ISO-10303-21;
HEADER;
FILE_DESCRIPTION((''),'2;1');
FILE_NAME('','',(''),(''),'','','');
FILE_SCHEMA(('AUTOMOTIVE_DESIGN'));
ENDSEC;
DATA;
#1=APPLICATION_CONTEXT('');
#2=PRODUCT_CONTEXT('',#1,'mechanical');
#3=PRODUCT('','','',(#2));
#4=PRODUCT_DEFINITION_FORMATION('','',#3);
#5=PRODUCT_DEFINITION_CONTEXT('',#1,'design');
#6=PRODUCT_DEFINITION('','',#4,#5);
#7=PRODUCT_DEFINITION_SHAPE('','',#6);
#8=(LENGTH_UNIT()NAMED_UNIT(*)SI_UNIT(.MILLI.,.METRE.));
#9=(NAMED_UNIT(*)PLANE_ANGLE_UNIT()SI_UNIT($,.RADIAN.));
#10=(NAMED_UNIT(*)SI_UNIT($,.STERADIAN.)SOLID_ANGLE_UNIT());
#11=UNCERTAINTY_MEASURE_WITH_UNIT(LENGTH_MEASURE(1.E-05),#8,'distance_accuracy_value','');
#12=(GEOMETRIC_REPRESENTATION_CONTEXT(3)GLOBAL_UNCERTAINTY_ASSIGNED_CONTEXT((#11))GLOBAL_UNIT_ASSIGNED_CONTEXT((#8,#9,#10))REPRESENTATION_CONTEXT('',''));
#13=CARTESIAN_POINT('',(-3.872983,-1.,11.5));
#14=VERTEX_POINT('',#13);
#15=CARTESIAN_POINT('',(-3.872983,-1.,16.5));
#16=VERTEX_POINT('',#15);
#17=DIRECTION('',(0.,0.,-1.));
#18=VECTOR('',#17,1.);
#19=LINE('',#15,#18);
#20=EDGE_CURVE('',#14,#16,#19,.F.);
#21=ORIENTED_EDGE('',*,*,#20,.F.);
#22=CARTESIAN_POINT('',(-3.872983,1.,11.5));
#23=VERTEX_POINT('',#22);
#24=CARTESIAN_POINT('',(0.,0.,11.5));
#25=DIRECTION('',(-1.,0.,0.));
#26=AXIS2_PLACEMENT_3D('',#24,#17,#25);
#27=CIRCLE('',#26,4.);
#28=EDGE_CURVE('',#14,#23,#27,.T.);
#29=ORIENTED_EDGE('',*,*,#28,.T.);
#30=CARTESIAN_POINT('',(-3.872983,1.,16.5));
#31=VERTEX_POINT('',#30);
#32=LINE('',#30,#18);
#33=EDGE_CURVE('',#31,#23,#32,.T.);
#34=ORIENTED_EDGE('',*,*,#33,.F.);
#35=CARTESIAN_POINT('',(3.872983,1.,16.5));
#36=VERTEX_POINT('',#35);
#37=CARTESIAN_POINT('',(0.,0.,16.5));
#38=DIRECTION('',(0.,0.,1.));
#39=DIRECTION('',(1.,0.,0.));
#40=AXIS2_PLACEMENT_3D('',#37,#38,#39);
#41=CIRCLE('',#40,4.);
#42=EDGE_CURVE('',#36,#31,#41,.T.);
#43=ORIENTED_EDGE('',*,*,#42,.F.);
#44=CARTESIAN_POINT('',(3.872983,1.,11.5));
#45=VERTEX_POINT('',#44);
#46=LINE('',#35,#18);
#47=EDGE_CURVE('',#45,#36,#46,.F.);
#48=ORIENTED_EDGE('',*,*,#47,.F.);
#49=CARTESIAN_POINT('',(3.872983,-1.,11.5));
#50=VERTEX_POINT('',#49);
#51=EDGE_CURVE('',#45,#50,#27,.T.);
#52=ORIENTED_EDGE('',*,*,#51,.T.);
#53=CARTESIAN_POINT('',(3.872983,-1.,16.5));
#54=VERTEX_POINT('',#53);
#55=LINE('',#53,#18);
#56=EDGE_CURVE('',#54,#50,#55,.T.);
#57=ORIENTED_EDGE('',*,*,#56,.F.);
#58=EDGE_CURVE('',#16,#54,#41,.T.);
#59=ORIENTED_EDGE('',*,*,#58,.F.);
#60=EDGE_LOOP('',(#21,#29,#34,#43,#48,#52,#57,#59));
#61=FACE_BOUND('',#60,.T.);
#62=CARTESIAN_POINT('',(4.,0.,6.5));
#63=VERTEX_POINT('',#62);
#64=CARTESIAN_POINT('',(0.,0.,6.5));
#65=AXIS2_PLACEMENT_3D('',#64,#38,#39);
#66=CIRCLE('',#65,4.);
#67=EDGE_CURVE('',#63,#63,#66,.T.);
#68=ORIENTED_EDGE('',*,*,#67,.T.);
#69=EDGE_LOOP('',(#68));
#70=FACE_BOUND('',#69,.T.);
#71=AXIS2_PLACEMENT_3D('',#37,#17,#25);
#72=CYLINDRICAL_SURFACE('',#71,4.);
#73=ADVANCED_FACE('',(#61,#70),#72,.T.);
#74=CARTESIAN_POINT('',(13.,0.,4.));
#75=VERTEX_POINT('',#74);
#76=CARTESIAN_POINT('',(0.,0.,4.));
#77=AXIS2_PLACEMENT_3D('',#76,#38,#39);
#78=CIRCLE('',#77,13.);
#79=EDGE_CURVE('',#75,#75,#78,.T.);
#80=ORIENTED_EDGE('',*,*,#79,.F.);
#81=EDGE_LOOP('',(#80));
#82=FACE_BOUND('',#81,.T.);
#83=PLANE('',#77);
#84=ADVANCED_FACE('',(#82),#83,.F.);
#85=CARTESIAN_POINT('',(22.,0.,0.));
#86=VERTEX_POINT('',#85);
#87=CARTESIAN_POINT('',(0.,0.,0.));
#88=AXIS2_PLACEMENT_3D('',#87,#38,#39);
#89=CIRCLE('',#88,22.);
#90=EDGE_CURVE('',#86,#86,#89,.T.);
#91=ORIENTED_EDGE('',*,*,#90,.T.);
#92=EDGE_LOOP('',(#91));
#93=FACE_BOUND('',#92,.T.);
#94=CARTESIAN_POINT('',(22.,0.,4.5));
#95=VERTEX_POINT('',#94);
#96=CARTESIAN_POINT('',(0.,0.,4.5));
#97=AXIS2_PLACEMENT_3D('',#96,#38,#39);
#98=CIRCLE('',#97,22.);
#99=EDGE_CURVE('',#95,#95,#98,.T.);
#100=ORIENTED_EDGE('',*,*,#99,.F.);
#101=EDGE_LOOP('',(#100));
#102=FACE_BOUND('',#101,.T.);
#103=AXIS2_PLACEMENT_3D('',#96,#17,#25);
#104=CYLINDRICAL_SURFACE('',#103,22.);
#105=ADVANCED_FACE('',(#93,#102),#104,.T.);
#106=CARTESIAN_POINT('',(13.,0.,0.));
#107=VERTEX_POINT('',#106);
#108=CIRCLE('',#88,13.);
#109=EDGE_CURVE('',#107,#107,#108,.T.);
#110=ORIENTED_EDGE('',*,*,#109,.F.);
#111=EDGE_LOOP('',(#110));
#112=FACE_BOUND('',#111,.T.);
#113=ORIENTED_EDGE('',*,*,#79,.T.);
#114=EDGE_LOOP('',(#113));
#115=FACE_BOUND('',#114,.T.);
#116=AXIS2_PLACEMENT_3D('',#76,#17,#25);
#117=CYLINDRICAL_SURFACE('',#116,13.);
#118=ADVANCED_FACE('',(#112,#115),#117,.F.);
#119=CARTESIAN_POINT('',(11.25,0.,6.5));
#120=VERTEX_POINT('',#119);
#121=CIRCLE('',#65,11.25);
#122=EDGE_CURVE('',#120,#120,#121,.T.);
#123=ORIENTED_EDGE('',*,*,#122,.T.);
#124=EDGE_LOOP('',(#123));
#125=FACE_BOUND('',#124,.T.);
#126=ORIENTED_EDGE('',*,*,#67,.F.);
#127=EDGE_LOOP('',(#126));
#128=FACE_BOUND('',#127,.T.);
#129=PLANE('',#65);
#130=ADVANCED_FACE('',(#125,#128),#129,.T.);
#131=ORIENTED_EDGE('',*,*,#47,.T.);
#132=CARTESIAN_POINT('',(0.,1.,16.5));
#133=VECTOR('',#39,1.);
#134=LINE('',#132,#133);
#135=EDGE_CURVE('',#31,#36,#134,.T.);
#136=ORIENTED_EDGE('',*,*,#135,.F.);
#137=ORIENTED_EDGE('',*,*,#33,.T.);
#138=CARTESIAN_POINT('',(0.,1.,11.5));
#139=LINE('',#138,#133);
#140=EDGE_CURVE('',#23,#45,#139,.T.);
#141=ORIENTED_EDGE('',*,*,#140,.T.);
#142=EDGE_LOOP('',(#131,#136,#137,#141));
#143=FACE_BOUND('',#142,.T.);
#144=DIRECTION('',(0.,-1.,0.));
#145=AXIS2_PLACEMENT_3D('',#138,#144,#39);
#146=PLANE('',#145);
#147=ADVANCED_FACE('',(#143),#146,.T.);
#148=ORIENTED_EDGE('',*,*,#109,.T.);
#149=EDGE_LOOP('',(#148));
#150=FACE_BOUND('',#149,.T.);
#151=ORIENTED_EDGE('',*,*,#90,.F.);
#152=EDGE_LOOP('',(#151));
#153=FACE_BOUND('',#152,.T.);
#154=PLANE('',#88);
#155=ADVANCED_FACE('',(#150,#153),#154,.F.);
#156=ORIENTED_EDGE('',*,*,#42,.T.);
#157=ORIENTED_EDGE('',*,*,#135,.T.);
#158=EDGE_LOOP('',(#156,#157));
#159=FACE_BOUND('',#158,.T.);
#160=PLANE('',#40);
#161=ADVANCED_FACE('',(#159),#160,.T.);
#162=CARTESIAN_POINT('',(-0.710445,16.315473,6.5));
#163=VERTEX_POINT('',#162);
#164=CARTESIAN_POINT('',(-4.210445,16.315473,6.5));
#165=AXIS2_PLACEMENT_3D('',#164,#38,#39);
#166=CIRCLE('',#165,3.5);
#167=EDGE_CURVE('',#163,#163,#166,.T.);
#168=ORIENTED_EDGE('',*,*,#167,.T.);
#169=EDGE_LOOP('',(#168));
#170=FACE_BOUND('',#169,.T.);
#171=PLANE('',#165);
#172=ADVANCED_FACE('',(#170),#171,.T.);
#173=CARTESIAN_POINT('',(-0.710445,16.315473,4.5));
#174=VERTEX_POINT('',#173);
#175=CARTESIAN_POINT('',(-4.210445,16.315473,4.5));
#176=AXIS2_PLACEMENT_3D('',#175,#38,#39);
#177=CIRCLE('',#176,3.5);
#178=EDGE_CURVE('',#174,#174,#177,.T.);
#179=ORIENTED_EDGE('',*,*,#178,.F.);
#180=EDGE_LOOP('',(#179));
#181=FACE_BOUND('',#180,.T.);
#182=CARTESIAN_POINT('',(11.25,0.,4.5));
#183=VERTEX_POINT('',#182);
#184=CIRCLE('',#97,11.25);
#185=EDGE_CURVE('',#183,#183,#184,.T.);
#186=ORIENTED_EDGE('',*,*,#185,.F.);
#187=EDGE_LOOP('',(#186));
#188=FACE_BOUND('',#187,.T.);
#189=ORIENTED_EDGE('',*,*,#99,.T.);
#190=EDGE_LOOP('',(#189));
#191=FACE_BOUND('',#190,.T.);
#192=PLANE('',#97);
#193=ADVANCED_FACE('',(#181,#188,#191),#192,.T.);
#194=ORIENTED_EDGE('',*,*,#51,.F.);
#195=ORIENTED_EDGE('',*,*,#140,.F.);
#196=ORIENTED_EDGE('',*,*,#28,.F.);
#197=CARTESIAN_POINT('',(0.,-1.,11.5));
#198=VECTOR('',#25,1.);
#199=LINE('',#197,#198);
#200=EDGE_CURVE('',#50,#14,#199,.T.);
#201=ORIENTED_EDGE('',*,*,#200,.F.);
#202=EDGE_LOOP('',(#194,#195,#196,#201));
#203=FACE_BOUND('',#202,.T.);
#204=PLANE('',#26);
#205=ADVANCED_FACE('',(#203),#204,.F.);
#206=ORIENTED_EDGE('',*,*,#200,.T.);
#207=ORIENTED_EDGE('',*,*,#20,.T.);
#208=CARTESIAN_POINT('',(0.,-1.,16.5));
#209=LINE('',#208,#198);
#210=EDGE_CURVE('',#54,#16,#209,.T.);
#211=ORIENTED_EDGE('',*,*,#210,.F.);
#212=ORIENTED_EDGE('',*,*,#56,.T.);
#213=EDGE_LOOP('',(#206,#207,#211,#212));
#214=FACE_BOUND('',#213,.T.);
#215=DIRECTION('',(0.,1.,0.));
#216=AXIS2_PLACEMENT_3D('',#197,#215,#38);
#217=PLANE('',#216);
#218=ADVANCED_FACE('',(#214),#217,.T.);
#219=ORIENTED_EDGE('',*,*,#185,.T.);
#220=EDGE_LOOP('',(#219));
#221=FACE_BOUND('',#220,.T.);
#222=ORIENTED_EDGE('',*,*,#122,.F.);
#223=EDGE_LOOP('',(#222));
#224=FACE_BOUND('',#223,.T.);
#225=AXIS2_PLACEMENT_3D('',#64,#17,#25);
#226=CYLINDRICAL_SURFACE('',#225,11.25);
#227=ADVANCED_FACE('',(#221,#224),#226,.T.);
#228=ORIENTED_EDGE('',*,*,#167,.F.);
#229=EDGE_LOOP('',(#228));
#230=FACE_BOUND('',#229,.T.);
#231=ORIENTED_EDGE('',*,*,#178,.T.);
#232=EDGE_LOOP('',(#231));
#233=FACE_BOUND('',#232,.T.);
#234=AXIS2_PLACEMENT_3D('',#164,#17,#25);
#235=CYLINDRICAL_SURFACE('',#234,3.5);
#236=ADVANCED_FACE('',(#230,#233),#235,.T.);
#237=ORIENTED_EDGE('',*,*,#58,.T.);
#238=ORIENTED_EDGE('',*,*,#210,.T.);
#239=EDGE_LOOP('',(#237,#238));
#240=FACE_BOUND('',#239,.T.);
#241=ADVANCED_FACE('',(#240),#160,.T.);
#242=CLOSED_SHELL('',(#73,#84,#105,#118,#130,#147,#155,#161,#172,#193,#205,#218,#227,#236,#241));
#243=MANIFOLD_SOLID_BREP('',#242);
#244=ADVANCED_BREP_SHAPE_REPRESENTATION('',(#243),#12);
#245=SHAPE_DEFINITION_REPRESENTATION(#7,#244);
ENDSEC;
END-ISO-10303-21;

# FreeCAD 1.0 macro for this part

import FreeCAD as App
import Part
import Sketcher
from FreeCAD import Vector
Q = App.Units.Quantity

doc = App.newDocument("Part")
body = doc.addObject("PartDesign::Body", "Body")

# Sketch on XY plane
sketch1 = body.newObject("Sketcher::SketchObject", "Sketch")
sketch1.AttachmentSupport = (doc.getObject("XY_Plane"), [""])
sketch1.MapMode = "FlatFace"
sketch1.addGeometry(Part.Circle(Vector(0, 0, 0), Vector(0, 0, 1), 22), False)
sketch1.addConstraint([
    Sketcher.Constraint("Coincident", 0, 3, -1, 1),
    Sketcher.Constraint("Diameter", 0, Q("44 mm")),
])
pad1 = body.newObject("PartDesign::Pad", "Pad")
pad1.Profile = sketch1
pad1.Length = 4.5

# Sketch on XY plane
sketch2 = body.newObject("Sketcher::SketchObject", "Sketch001")
sketch2.AttachmentSupport = (doc.getObject("XY_Plane"), [""])
sketch2.MapMode = "FlatFace"
sketch2.AttachmentOffset = App.Placement(Vector(0, 0, 4.5), App.Rotation())
sketch2.addGeometry(Part.Circle(Vector(0, 0, 0), Vector(0, 0, 1), 11), False)
sketch2.addConstraint([
    Sketcher.Constraint("Coincident", 0, 3, -1, 1),
    Sketcher.Constraint("Diameter", 0, Q("22.5 mm")),
])
pad2 = body.newObject("PartDesign::Pad", "Pad001")
pad2.Profile = sketch2
pad2.Length = 2

# Sketch on XY plane
sketch3 = body.newObject("Sketcher::SketchObject", "Sketch002")
sketch3.AttachmentSupport = (doc.getObject("XY_Plane"), [""])
sketch3.MapMode = "FlatFace"
sketch3.AttachmentOffset = App.Placement(Vector(0, 0, 4.5), App.Rotation())
sketch3.addGeometry(Part.Circle(Vector(-4.2, 16.3, 0), Vector(0, 0, 1), 3.5), False)
sketch3.addConstraint([
    Sketcher.Constraint("Diameter", 0, Q("7 mm")),
    Sketcher.Constraint("DistanceX", 0, 3, -1, 1, Q("4.210445 mm")),
    Sketcher.Constraint("DistanceY", -1, 1, 0, 3, Q("16.315473 mm")),
])
pad3 = body.newObject("PartDesign::Pad", "Pad002")
pad3.Profile = sketch3
pad3.Length = 2

# Sketch on XY plane
sketch4 = body.newObject("Sketcher::SketchObject", "Sketch003")
sketch4.AttachmentSupport = (doc.getObject("XY_Plane"), [""])
sketch4.MapMode = "FlatFace"
sketch4.AttachmentOffset = App.Placement(Vector(0, 0, 6.5), App.Rotation())
sketch4.addGeometry(Part.Circle(Vector(0, 0, 0), Vector(0, 0, 1), 4), False)
sketch4.addConstraint([
    Sketcher.Constraint("Coincident", 0, 3, -1, 1),
    Sketcher.Constraint("Diameter", 0, Q("8 mm")),
])
pad4 = body.newObject("PartDesign::Pad", "Pad003")
pad4.Profile = sketch4
pad4.Length = 10

# Sketch on XY plane
sketch5 = body.newObject("Sketcher::SketchObject", "Sketch004")
sketch5.AttachmentSupport = (doc.getObject("XY_Plane"), [""])
sketch5.MapMode = "FlatFace"
sketch5.AttachmentOffset = App.Placement(Vector(0, 0, 16.5), App.Rotation())
sketch5.addGeometry([
    Part.LineSegment(Vector(-24.9, 1, 0), Vector(-24.9, -1, 0)),
    Part.LineSegment(Vector(-24.9, -1, 0), Vector(29.4, -1, 0)),
    Part.LineSegment(Vector(29.4, -1, 0), Vector(29.4, 1, 0)),
    Part.LineSegment(Vector(29.4, 1, 0), Vector(-24.9, 1, 0)),
], False)
sketch5.addConstraint([
    Sketcher.Constraint("Coincident", 0, 2, 1, 1),
    Sketcher.Constraint("Coincident", 1, 2, 2, 1),
    Sketcher.Constraint("Coincident", 2, 2, 3, 1),
    Sketcher.Constraint("Coincident", 3, 2, 0, 1),
    Sketcher.Constraint("Vertical", 0),
    Sketcher.Constraint("Horizontal", 1),
    Sketcher.Constraint("Vertical", 2),
    Sketcher.Constraint("Horizontal", 3),
    Sketcher.Constraint("DistanceY", 0, 2, 0, 1, Q("2 mm")),
    Sketcher.Constraint("DistanceY", 0, 2, -1, 1, Q("1 mm")),
    Sketcher.Constraint("DistanceX", 1, 1, 1, 2, Q("54.287881 mm")),
    Sketcher.Constraint("DistanceX", 0, 2, -1, 1, Q("24.867352 mm")),
])
pocket1 = body.newObject("PartDesign::Pocket", "Pocket")
pocket1.Profile = sketch5
pocket1.Length = 5

# Sketch on XY plane
sketch6 = body.newObject("Sketcher::SketchObject", "Sketch005")
sketch6.AttachmentSupport = (doc.getObject("XY_Plane"), [""])
sketch6.MapMode = "FlatFace"
sketch6.addGeometry(Part.Circle(Vector(0, 0, 0), Vector(0, 0, 1), 13), False)
sketch6.addConstraint([
    Sketcher.Constraint("Coincident", 0, 3, -1, 1),
    Sketcher.Constraint("Diameter", 0, Q("26 mm")),
])
pocket2 = body.newObject("PartDesign::Pocket", "Pocket001")
pocket2.Profile = sketch6
pocket2.Length = 4
pocket2.Reversed = True

doc.recompute()
